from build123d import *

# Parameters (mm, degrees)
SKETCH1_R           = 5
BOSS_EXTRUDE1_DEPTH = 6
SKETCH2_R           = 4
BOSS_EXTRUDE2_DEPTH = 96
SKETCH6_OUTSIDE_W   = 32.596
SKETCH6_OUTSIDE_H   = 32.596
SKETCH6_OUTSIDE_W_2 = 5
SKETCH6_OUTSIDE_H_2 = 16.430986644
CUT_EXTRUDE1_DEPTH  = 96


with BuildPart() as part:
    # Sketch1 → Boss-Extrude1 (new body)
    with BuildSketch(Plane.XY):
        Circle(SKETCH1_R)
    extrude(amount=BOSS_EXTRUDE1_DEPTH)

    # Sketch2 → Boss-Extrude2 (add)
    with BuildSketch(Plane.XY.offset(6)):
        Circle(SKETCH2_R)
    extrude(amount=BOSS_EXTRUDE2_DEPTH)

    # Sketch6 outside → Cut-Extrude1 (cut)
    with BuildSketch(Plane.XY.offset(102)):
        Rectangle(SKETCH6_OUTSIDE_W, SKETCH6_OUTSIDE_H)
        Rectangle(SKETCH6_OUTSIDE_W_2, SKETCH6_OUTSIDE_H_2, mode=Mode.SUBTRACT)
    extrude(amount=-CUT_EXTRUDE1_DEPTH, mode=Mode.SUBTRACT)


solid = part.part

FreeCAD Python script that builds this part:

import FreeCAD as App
import Part
import Sketcher
from FreeCAD import Vector

doc = App.newDocument("Part")
body = doc.addObject("PartDesign::Body", "Body")

sketch1 = doc.addObject("Sketcher::SketchObject", "Sketch")
body.addObject(sketch1)
sketch1.AttachmentSupport = (doc.XY_Plane, [""])
sketch1.MapMode = "FlatFace"
sketch1.addGeometry(Part.Circle(Vector(0, 0, 0), Vector(0, 0, 1), 5), False)
sketch1.addConstraint([
    Sketcher.Constraint("Coincident", 0, 3, -1, 1),
    Sketcher.Constraint("Diameter", 0, 10.0),
])
pad1 = doc.addObject("PartDesign::Pad", "Pad")
body.addObject(pad1)
pad1.Profile = sketch1
pad1.Length = 6

sketch2 = doc.addObject("Sketcher::SketchObject", "Sketch001")
body.addObject(sketch2)
sketch2.AttachmentSupport = (doc.XY_Plane, [""])
sketch2.MapMode = "FlatFace"
sketch2.AttachmentOffset = App.Placement(Vector(0, 0, 6), App.Rotation())
sketch2.addGeometry(Part.Circle(Vector(0, 0, 0), Vector(0, 0, 1), 4), False)
sketch2.addConstraint([
    Sketcher.Constraint("Coincident", 0, 3, -1, 1),
    Sketcher.Constraint("Diameter", 0, 8.0),
])
pad2 = doc.addObject("PartDesign::Pad", "Pad001")
body.addObject(pad2)
pad2.Profile = sketch2
pad2.Length = 96

sketch3 = doc.addObject("Sketcher::SketchObject", "Sketch002")
body.addObject(sketch3)
sketch3.AttachmentSupport = (doc.XY_Plane, [""])
sketch3.MapMode = "FlatFace"
sketch3.AttachmentOffset = App.Placement(Vector(0, 0, 102), App.Rotation())
sketch3.addGeometry([
    Part.LineSegment(Vector(-16.298, 16.298, 0), Vector(-16.298, -16.298, 0)),
    Part.LineSegment(Vector(-16.298, -16.298, 0), Vector(16.298, -16.298, 0)),
    Part.LineSegment(Vector(16.298, -16.298, 0), Vector(16.298, 16.298, 0)),
    Part.LineSegment(Vector(16.298, 16.298, 0), Vector(-16.298, 16.298, 0)),
    Part.LineSegment(Vector(2.5, -8.215493, 0), Vector(-2.5, -8.215493, 0)),
    Part.LineSegment(Vector(-2.5, -8.215493, 0), Vector(-2.5, 8.215493, 0)),
    Part.LineSegment(Vector(-2.5, 8.215493, 0), Vector(2.5, 8.215493, 0)),
    Part.LineSegment(Vector(2.5, 8.215493, 0), Vector(2.5, -8.215493, 0)),
], False)
sketch3.addConstraint([
    Sketcher.Constraint("Coincident", 0, 2, 1, 1),
    Sketcher.Constraint("Coincident", 1, 2, 2, 1),
    Sketcher.Constraint("Coincident", 2, 2, 3, 1),
    Sketcher.Constraint("Coincident", 3, 2, 0, 1),
    Sketcher.Constraint("Coincident", 4, 2, 5, 1),
    Sketcher.Constraint("Coincident", 5, 2, 6, 1),
    Sketcher.Constraint("Coincident", 6, 2, 7, 1),
    Sketcher.Constraint("Coincident", 7, 2, 4, 1),
    Sketcher.Constraint("Vertical", 0),
    Sketcher.Constraint("Horizontal", 1),
    Sketcher.Constraint("Vertical", 2),
    Sketcher.Constraint("Horizontal", 3),
    Sketcher.Constraint("Horizontal", 4),
    Sketcher.Constraint("Vertical", 5),
    Sketcher.Constraint("Horizontal", 6),
    Sketcher.Constraint("Vertical", 7),
    Sketcher.Constraint("Symmetric", 0, 2, 2, 2, -1, 1),
    Sketcher.Constraint("Symmetric", 4, 2, 6, 2, -1, 1),
    Sketcher.Constraint("Equal", 3, 0),
    Sketcher.Constraint("DistanceX", 4, 2, 4, 1, 5.0),
    Sketcher.Constraint("DistanceX", 1, 1, 1, 2, 32.596),
    Sketcher.Constraint("DistanceY", 5, 1, 5, 2, 16.430987),
])
pocket1 = doc.addObject("PartDesign::Pocket", "Pocket")
body.addObject(pocket1)
pocket1.Profile = sketch3
pocket1.Length = 96

doc.recompute()
